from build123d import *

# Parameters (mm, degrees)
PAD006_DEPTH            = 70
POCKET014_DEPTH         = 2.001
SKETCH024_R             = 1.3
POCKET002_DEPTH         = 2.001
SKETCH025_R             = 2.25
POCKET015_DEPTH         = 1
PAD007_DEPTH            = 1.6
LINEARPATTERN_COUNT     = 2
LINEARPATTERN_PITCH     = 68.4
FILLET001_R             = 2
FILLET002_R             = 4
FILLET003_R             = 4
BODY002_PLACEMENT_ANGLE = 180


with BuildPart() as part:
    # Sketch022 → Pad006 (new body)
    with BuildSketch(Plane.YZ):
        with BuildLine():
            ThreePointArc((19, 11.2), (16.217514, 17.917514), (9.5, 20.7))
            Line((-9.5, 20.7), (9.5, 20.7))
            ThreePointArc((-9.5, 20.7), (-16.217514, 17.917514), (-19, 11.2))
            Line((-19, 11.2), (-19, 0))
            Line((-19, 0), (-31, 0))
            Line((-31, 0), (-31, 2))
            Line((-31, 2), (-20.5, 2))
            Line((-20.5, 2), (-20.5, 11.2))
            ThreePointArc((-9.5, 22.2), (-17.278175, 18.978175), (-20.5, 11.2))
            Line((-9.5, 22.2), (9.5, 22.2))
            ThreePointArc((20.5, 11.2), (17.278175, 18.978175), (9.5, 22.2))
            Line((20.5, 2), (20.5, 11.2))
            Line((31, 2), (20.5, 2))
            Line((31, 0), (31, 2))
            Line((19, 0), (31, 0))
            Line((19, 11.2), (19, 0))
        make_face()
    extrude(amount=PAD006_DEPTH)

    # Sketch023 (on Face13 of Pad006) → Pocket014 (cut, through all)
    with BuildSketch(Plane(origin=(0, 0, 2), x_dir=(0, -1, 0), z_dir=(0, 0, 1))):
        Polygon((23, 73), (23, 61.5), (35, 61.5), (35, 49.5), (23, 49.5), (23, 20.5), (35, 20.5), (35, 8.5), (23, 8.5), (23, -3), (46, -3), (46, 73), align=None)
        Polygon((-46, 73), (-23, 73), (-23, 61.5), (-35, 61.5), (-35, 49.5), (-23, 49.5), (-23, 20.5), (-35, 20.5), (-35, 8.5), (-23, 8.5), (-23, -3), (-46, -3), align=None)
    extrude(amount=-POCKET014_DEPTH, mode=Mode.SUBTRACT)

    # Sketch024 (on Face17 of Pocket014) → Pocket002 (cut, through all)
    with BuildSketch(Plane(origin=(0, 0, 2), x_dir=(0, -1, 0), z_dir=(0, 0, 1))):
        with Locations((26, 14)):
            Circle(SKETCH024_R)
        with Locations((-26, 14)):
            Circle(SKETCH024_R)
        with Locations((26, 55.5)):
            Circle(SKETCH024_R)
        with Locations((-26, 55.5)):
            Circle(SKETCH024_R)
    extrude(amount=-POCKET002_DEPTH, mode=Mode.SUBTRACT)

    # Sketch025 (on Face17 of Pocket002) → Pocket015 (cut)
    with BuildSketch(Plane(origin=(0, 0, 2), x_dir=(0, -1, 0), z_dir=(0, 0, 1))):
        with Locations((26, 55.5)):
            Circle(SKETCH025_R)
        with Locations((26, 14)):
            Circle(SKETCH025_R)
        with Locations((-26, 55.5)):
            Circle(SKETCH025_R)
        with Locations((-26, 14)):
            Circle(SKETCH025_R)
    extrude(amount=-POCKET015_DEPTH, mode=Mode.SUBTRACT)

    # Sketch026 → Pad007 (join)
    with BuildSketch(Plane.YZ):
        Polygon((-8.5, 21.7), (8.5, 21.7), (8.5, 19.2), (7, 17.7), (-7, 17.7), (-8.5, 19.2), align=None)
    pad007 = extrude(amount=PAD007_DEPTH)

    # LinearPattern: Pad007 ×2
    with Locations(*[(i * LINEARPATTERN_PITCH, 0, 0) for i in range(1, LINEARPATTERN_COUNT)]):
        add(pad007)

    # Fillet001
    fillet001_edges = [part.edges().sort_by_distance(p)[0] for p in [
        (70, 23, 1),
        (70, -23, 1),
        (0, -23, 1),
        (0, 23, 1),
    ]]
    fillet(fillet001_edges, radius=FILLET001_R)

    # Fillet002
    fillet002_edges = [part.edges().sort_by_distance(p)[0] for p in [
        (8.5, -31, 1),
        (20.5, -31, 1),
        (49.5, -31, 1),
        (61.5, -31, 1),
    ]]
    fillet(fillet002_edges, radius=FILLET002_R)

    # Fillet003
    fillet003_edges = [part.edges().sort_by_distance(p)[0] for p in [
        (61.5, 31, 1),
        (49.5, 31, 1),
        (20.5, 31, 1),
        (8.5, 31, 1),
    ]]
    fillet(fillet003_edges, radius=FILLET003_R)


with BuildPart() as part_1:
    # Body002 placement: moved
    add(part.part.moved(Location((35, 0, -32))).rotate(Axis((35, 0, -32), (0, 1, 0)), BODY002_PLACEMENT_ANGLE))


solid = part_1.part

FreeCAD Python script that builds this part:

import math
import FreeCAD as App
import Part
import Sketcher


def edges_at(feature, points):
    """Names of the edges that pass closest to the given points."""
    edges = feature.Shape.Edges
    near = lambda p: min(range(len(edges)), key=lambda i: edges[i].distToShape(Part.Vertex(*p))[0])
    return sorted({f"Edge{near(p) + 1}" for p in points})


def add_polygon(sketch, points):
    """Adds a closed chain of lines whose ends are joined by coincident constraints."""
    first, n = sketch.GeometryCount, len(points)
    for a, b in zip(points, points[1:] + points[:1]):
        sketch.addGeometry(Part.LineSegment(App.Vector(*a, 0), App.Vector(*b, 0)), False)
    for i in range(n):
        sketch.addConstraint(Sketcher.Constraint("Coincident", first + i, 2, first + (i + 1) % n, 1))

doc = App.newDocument("Part")
body = doc.addObject("PartDesign::Body", "Body")

# Sketch on YZ plane
sketch1 = doc.addObject("Sketcher::SketchObject", "Sketch")
body.addObject(sketch1)
sketch1.AttachmentSupport = (doc.YZ_Plane, [""])
sketch1.MapMode = "FlatFace"
sketch1.addGeometry([
    Part.ArcOfCircle(Part.Circle(App.Vector(9.499999, 11.199999, 0), App.Vector(0, 0, 1), 9.500001), math.radians(0.000009), math.radians(89.999991)),  # 0
    Part.LineSegment(App.Vector(19, 11.2, 0), App.Vector(19, 0, 0)),  # 1
    Part.LineSegment(App.Vector(19, 0, 0), App.Vector(31, 0, 0)),  # 2
    Part.LineSegment(App.Vector(31, 0, 0), App.Vector(31, 2, 0)),  # 3
    Part.LineSegment(App.Vector(31, 2, 0), App.Vector(20.5, 2, 0)),  # 4
    Part.LineSegment(App.Vector(20.5, 2, 0), App.Vector(20.5, 11.2, 0)),  # 5
    Part.ArcOfCircle(Part.Circle(App.Vector(9.500001, 11.200001, 0), App.Vector(0, 0, 1), 10.999999), math.radians(-0.000007), math.radians(90.000007)),  # 6
    Part.LineSegment(App.Vector(9.5, 22.2, 0), App.Vector(-9.5, 22.2, 0)),  # 7
    Part.ArcOfCircle(Part.Circle(App.Vector(-9.500001, 11.200001, 0), App.Vector(0, 0, 1), 10.999999), math.radians(89.999993), math.radians(180.000007)),  # 8
    Part.LineSegment(App.Vector(-20.5, 11.2, 0), App.Vector(-20.5, 2, 0)),  # 9
    Part.LineSegment(App.Vector(-20.5, 2, 0), App.Vector(-31, 2, 0)),  # 10
    Part.LineSegment(App.Vector(-31, 2, 0), App.Vector(-31, 0, 0)),  # 11
    Part.LineSegment(App.Vector(-31, 0, 0), App.Vector(-19, 0, 0)),  # 12
    Part.LineSegment(App.Vector(-19, 0, 0), App.Vector(-19, 11.2, 0)),  # 13
    Part.ArcOfCircle(Part.Circle(App.Vector(-9.499999, 11.199999, 0), App.Vector(0, 0, 1), 9.500001), math.radians(90.000009), math.radians(179.999991)),  # 14
    Part.LineSegment(App.Vector(-9.5, 20.7, 0), App.Vector(9.5, 20.7, 0)),  # 15
], False)
sketch1.addConstraint([
    Sketcher.Constraint("Tangent", 0, 1, 1, 1),
    Sketcher.Constraint("Coincident", 1, 2, 2, 1),
    Sketcher.Constraint("Coincident", 2, 2, 3, 1),
    Sketcher.Constraint("Coincident", 3, 2, 4, 1),
    Sketcher.Constraint("Coincident", 4, 2, 5, 1),
    Sketcher.Constraint("Tangent", 5, 2, 6, 1),
    Sketcher.Constraint("Tangent", 6, 2, 7, 1),
    Sketcher.Constraint("Tangent", 7, 2, 8, 1),
    Sketcher.Constraint("Tangent", 8, 2, 9, 1),
    Sketcher.Constraint("Coincident", 9, 2, 10, 1),
    Sketcher.Constraint("Coincident", 10, 2, 11, 1),
    Sketcher.Constraint("Coincident", 11, 2, 12, 1),
    Sketcher.Constraint("Coincident", 12, 2, 13, 1),
    Sketcher.Constraint("Tangent", 13, 2, 14, 2),
    Sketcher.Constraint("Tangent", 14, 1, 15, 1),
    Sketcher.Constraint("Tangent", 15, 2, 0, 2),
    Sketcher.Constraint("Vertical", 1),
    Sketcher.Constraint("Horizontal", 2),
    Sketcher.Constraint("Vertical", 3),
    Sketcher.Constraint("Horizontal", 4),
    Sketcher.Constraint("Vertical", 5),
    Sketcher.Constraint("Horizontal", 7),
    Sketcher.Constraint("Vertical", 9),
    Sketcher.Constraint("Horizontal", 10),
    Sketcher.Constraint("Vertical", 11),
    Sketcher.Constraint("Horizontal", 12),
    Sketcher.Constraint("Vertical", 13),
    Sketcher.Constraint("Horizontal", 15),
    Sketcher.Constraint("Coincident", 6, 3, 0, 3),
    Sketcher.Constraint("Coincident", 14, 3, 8, 3),
    Sketcher.Constraint("Equal", 6, 8),
    Sketcher.Constraint("Symmetric", 2, 2, 11, 2, -1, 1),
    Sketcher.Constraint("Symmetric", 4, 2, 9, 2, -2),
    Sketcher.Constraint("PointOnObject", 1, 2, -1),
    Sketcher.Constraint("Radius", 6, 10.999999),
    Sketcher.Constraint("Radius", 0, 9.500001),
    Sketcher.Constraint("DistanceX", 2, 1, 2, 2, 12.0),
    Sketcher.Constraint("DistanceX", 7, 2, 7, 1, 19.0),
    Sketcher.Constraint("DistanceY", 3, 1, 3, 2, 2.0),
    Sketcher.Constraint("DistanceY", 1, 2, 1, 1, 11.2),
])
pad1 = doc.addObject("PartDesign::Pad", "Pad")
body.addObject(pad1)
pad1.Profile = sketch1
pad1.Length = 70

# Sketch on XY plane
sketch2 = doc.addObject("Sketcher::SketchObject", "Sketch001")
body.addObject(sketch2)
sketch2.AttachmentSupport = (doc.XY_Plane, [""])
sketch2.MapMode = "FlatFace"
sketch2.AttachmentOffset = App.Placement(App.Vector(0, 0, 2), App.Rotation())
add_polygon(sketch2, [(73, -23), (61.5, -23), (61.5, -35), (49.5, -35), (49.5, -23), (20.5, -23), (20.5, -35), (8.5, -35), (8.5, -23), (-3, -23), (-3, -46), (73, -46)])  # lines 0-11
add_polygon(sketch2, [(73, 23), (73, 46), (-3, 46), (-3, 23), (8.5, 23), (8.5, 35), (20.5, 35), (20.5, 23), (49.5, 23), (49.5, 35), (61.5, 35), (61.5, 23)])  # lines 12-23
sketch2.addConstraint([
    Sketcher.Constraint("Horizontal", 0),
    Sketcher.Constraint("Vertical", 1),
    Sketcher.Constraint("Horizontal", 2),
    Sketcher.Constraint("Vertical", 3),
    Sketcher.Constraint("Horizontal", 4),
    Sketcher.Constraint("Vertical", 5),
    Sketcher.Constraint("Horizontal", 6),
    Sketcher.Constraint("Vertical", 7),
    Sketcher.Constraint("Horizontal", 8),
    Sketcher.Constraint("Vertical", 9),
    Sketcher.Constraint("Horizontal", 10),
    Sketcher.Constraint("Vertical", 11),
    Sketcher.Constraint("Vertical", 12),
    Sketcher.Constraint("Horizontal", 13),
    Sketcher.Constraint("Vertical", 14),
    Sketcher.Constraint("Horizontal", 15),
    Sketcher.Constraint("Vertical", 16),
    Sketcher.Constraint("Horizontal", 17),
    Sketcher.Constraint("Vertical", 18),
    Sketcher.Constraint("Horizontal", 19),
    Sketcher.Constraint("Vertical", 20),
    Sketcher.Constraint("Horizontal", 21),
    Sketcher.Constraint("Vertical", 22),
    Sketcher.Constraint("Horizontal", 23),
    Sketcher.Constraint("Symmetric", 10, 2, 12, 2, -1),
    Sketcher.Constraint("Symmetric", 8, 2, 14, 2, -1),
    Sketcher.Constraint("Symmetric", 6, 2, 16, 2, -1),
    Sketcher.Constraint("Symmetric", 4, 2, 18, 2, -1),
    Sketcher.Constraint("Symmetric", 2, 2, 20, 2, -1),
    Sketcher.Constraint("Symmetric", 0, 2, 22, 2, -1),
    Sketcher.Constraint("Horizontal", 0, 2, 3, 2),
    Sketcher.Constraint("Horizontal", 2, 2, 5, 2),
    Sketcher.Constraint("Horizontal", 4, 2, 7, 2),
    Sketcher.Constraint("Equal", 2, 6),
    Sketcher.Constraint("Equal", 0, 8),
    Sketcher.Constraint("Equal", 21, 1),
    Sketcher.Constraint("DistanceX", 2, 2, 2, 1, 12.0),
    Sketcher.Constraint("DistanceX", 4, 2, 4, 1, 29.0),
    Sketcher.Constraint("DistanceX", 10, 1, 10, 2, 76.0),
    Sketcher.Constraint("DistanceY", 9, 2, 9, 1, 23.0),
    Sketcher.Constraint("DistanceY", 0, 2, -1, 1, 23.0),
    Sketcher.Constraint("DistanceX", 8, 2, -1, 1, 3.0),
])
pocket1 = doc.addObject("PartDesign::Pocket", "Pocket")
body.addObject(pocket1)
pocket1.Profile = sketch2
pocket1.Type = "ThroughAll"

# Sketch on XY plane
sketch3 = doc.addObject("Sketcher::SketchObject", "Sketch002")
body.addObject(sketch3)
sketch3.AttachmentSupport = (doc.XY_Plane, [""])
sketch3.MapMode = "FlatFace"
sketch3.AttachmentOffset = App.Placement(App.Vector(0, 0, 2), App.Rotation())
sketch3.addGeometry([
    Part.Circle(App.Vector(14, -26, 0), App.Vector(0, 0, 1), 1.3),
    Part.Circle(App.Vector(14, 26, 0), App.Vector(0, 0, 1), 1.3),
    Part.Circle(App.Vector(55.5, -26, 0), App.Vector(0, 0, 1), 1.3),
    Part.Circle(App.Vector(55.5, 26, 0), App.Vector(0, 0, 1), 1.3),
], False)
sketch3.addConstraint([
    Sketcher.Constraint("Equal", 0, 1),
    Sketcher.Constraint("Equal", 1, 2),
    Sketcher.Constraint("Equal", 2, 3),
    Sketcher.Constraint("Symmetric", 0, 3, 1, 3, -1),
    Sketcher.Constraint("Symmetric", 2, 3, 3, 3, -1),
    Sketcher.Constraint("Horizontal", 0, 3, 2, 3),
    Sketcher.Constraint("Diameter", 0, 2.6),
    Sketcher.Constraint("DistanceX", -1, 1, 0, 3, 14.0),
    Sketcher.Constraint("DistanceY", 0, 3, -1, 1, 26.0),
    Sketcher.Constraint("DistanceX", -1, 1, 2, 3, 55.5),
])
pocket2 = doc.addObject("PartDesign::Pocket", "Pocket001")
body.addObject(pocket2)
pocket2.Profile = sketch3
pocket2.Type = "ThroughAll"

# Sketch on XY plane
sketch4 = doc.addObject("Sketcher::SketchObject", "Sketch003")
body.addObject(sketch4)
sketch4.AttachmentSupport = (doc.XY_Plane, [""])
sketch4.MapMode = "FlatFace"
sketch4.AttachmentOffset = App.Placement(App.Vector(0, 0, 2), App.Rotation())
sketch4.addGeometry([
    Part.Circle(App.Vector(55.5, -26, 0), App.Vector(0, 0, 1), 2.25),
    Part.Circle(App.Vector(14, -26, 0), App.Vector(0, 0, 1), 2.25),
    Part.Circle(App.Vector(55.5, 26, 0), App.Vector(0, 0, 1), 2.25),
    Part.Circle(App.Vector(14, 26, 0), App.Vector(0, 0, 1), 2.25),
], False)
sketch4.addConstraint([
    Sketcher.Constraint("Equal", 0, 1),
    Sketcher.Constraint("Equal", 1, 2),
    Sketcher.Constraint("Equal", 2, 3),
    Sketcher.Constraint("Symmetric", 0, 3, 2, 3, -1),
    Sketcher.Constraint("Symmetric", 1, 3, 3, 3, -1),
    Sketcher.Constraint("Horizontal", 0, 3, 1, 3),
    Sketcher.Constraint("Diameter", 0, 4.5),
    Sketcher.Constraint("DistanceY", 0, 3, -1, 1, 26.0),
    Sketcher.Constraint("DistanceX", -1, 1, 1, 3, 14.0),
    Sketcher.Constraint("DistanceX", -1, 1, 0, 3, 55.5),
])
pocket3 = doc.addObject("PartDesign::Pocket", "Pocket002")
body.addObject(pocket3)
pocket3.Profile = sketch4
pocket3.Length = 1

# Sketch on YZ plane
sketch5 = doc.addObject("Sketcher::SketchObject", "Sketch004")
body.addObject(sketch5)
sketch5.AttachmentSupport = (doc.YZ_Plane, [""])
sketch5.MapMode = "FlatFace"
add_polygon(sketch5, [(8.5, 21.7), (-8.5, 21.7), (-8.5, 19.2), (-7, 17.7), (7, 17.7), (8.5, 19.2)])  # lines 0-5
sketch5.addConstraint([
    Sketcher.Constraint("Horizontal", 0),
    Sketcher.Constraint("Vertical", 1),
    Sketcher.Constraint("Horizontal", 3),
    Sketcher.Constraint("Vertical", 5),
    Sketcher.Constraint("Symmetric", 1, 2, 4, 2, -2),
    Sketcher.Constraint("Perpendicular", 2, 4),
    Sketcher.Constraint("Equal", 2, 4),
    Sketcher.Constraint("DistanceX", 0, 2, 0, 1, 17.0),
    Sketcher.Constraint("DistanceX", 3, 1, 3, 2, 14.0),
    Sketcher.Constraint("DistanceY", 1, 2, 1, 1, 2.5),
    Sketcher.Constraint("DistanceY", -1, 1, 0, 2, 21.7),
])
pad2 = doc.addObject("PartDesign::Pad", "Pad001")
body.addObject(pad2)
pad2.Profile = sketch5
pad2.Length = 1.6
doc.recompute()

linearpattern = doc.addObject("PartDesign::LinearPattern", "LinearPattern")
body.addObject(linearpattern)
linearpattern.Originals = [pad2]
linearpattern.Direction = (doc.X_Axis, [""])
linearpattern.Mode = "offset"
linearpattern.Offset = 68.4
linearpattern.Occurrences = 2
body.Tip = linearpattern
doc.recompute()

fillet = doc.addObject("PartDesign::Fillet", "Fillet")
body.addObject(fillet)
fillet.Base = (linearpattern, edges_at(linearpattern, [
    (70, 23, 1),
    (70, -23, 1),
    (0, -23, 1),
    (0, 23, 1),
]))
fillet.Radius = 2
doc.recompute()

fillet2 = doc.addObject("PartDesign::Fillet", "Fillet001")
body.addObject(fillet2)
fillet2.Base = (fillet, edges_at(fillet, [
    (8.5, -31, 1),
    (20.5, -31, 1),
    (49.5, -31, 1),
    (61.5, -31, 1),
]))
fillet2.Radius = 4
doc.recompute()

fillet3 = doc.addObject("PartDesign::Fillet", "Fillet002")
body.addObject(fillet3)
fillet3.Base = (fillet2, edges_at(fillet2, [
    (61.5, 31, 1),
    (49.5, 31, 1),
    (20.5, 31, 1),
    (8.5, 31, 1),
]))
fillet3.Radius = 4
body2 = doc.addObject("PartDesign::Body", "Body001")
doc.recompute()

body.Placement = App.Placement(App.Vector(35, 0, -32), App.Rotation(App.Vector(0, 1, 0), 180))
boolean = doc.addObject("PartDesign::Boolean", "Boolean")
body2.addObject(boolean)
boolean.Type = "Fuse"
boolean.addObjects([body])

doc.recompute()
